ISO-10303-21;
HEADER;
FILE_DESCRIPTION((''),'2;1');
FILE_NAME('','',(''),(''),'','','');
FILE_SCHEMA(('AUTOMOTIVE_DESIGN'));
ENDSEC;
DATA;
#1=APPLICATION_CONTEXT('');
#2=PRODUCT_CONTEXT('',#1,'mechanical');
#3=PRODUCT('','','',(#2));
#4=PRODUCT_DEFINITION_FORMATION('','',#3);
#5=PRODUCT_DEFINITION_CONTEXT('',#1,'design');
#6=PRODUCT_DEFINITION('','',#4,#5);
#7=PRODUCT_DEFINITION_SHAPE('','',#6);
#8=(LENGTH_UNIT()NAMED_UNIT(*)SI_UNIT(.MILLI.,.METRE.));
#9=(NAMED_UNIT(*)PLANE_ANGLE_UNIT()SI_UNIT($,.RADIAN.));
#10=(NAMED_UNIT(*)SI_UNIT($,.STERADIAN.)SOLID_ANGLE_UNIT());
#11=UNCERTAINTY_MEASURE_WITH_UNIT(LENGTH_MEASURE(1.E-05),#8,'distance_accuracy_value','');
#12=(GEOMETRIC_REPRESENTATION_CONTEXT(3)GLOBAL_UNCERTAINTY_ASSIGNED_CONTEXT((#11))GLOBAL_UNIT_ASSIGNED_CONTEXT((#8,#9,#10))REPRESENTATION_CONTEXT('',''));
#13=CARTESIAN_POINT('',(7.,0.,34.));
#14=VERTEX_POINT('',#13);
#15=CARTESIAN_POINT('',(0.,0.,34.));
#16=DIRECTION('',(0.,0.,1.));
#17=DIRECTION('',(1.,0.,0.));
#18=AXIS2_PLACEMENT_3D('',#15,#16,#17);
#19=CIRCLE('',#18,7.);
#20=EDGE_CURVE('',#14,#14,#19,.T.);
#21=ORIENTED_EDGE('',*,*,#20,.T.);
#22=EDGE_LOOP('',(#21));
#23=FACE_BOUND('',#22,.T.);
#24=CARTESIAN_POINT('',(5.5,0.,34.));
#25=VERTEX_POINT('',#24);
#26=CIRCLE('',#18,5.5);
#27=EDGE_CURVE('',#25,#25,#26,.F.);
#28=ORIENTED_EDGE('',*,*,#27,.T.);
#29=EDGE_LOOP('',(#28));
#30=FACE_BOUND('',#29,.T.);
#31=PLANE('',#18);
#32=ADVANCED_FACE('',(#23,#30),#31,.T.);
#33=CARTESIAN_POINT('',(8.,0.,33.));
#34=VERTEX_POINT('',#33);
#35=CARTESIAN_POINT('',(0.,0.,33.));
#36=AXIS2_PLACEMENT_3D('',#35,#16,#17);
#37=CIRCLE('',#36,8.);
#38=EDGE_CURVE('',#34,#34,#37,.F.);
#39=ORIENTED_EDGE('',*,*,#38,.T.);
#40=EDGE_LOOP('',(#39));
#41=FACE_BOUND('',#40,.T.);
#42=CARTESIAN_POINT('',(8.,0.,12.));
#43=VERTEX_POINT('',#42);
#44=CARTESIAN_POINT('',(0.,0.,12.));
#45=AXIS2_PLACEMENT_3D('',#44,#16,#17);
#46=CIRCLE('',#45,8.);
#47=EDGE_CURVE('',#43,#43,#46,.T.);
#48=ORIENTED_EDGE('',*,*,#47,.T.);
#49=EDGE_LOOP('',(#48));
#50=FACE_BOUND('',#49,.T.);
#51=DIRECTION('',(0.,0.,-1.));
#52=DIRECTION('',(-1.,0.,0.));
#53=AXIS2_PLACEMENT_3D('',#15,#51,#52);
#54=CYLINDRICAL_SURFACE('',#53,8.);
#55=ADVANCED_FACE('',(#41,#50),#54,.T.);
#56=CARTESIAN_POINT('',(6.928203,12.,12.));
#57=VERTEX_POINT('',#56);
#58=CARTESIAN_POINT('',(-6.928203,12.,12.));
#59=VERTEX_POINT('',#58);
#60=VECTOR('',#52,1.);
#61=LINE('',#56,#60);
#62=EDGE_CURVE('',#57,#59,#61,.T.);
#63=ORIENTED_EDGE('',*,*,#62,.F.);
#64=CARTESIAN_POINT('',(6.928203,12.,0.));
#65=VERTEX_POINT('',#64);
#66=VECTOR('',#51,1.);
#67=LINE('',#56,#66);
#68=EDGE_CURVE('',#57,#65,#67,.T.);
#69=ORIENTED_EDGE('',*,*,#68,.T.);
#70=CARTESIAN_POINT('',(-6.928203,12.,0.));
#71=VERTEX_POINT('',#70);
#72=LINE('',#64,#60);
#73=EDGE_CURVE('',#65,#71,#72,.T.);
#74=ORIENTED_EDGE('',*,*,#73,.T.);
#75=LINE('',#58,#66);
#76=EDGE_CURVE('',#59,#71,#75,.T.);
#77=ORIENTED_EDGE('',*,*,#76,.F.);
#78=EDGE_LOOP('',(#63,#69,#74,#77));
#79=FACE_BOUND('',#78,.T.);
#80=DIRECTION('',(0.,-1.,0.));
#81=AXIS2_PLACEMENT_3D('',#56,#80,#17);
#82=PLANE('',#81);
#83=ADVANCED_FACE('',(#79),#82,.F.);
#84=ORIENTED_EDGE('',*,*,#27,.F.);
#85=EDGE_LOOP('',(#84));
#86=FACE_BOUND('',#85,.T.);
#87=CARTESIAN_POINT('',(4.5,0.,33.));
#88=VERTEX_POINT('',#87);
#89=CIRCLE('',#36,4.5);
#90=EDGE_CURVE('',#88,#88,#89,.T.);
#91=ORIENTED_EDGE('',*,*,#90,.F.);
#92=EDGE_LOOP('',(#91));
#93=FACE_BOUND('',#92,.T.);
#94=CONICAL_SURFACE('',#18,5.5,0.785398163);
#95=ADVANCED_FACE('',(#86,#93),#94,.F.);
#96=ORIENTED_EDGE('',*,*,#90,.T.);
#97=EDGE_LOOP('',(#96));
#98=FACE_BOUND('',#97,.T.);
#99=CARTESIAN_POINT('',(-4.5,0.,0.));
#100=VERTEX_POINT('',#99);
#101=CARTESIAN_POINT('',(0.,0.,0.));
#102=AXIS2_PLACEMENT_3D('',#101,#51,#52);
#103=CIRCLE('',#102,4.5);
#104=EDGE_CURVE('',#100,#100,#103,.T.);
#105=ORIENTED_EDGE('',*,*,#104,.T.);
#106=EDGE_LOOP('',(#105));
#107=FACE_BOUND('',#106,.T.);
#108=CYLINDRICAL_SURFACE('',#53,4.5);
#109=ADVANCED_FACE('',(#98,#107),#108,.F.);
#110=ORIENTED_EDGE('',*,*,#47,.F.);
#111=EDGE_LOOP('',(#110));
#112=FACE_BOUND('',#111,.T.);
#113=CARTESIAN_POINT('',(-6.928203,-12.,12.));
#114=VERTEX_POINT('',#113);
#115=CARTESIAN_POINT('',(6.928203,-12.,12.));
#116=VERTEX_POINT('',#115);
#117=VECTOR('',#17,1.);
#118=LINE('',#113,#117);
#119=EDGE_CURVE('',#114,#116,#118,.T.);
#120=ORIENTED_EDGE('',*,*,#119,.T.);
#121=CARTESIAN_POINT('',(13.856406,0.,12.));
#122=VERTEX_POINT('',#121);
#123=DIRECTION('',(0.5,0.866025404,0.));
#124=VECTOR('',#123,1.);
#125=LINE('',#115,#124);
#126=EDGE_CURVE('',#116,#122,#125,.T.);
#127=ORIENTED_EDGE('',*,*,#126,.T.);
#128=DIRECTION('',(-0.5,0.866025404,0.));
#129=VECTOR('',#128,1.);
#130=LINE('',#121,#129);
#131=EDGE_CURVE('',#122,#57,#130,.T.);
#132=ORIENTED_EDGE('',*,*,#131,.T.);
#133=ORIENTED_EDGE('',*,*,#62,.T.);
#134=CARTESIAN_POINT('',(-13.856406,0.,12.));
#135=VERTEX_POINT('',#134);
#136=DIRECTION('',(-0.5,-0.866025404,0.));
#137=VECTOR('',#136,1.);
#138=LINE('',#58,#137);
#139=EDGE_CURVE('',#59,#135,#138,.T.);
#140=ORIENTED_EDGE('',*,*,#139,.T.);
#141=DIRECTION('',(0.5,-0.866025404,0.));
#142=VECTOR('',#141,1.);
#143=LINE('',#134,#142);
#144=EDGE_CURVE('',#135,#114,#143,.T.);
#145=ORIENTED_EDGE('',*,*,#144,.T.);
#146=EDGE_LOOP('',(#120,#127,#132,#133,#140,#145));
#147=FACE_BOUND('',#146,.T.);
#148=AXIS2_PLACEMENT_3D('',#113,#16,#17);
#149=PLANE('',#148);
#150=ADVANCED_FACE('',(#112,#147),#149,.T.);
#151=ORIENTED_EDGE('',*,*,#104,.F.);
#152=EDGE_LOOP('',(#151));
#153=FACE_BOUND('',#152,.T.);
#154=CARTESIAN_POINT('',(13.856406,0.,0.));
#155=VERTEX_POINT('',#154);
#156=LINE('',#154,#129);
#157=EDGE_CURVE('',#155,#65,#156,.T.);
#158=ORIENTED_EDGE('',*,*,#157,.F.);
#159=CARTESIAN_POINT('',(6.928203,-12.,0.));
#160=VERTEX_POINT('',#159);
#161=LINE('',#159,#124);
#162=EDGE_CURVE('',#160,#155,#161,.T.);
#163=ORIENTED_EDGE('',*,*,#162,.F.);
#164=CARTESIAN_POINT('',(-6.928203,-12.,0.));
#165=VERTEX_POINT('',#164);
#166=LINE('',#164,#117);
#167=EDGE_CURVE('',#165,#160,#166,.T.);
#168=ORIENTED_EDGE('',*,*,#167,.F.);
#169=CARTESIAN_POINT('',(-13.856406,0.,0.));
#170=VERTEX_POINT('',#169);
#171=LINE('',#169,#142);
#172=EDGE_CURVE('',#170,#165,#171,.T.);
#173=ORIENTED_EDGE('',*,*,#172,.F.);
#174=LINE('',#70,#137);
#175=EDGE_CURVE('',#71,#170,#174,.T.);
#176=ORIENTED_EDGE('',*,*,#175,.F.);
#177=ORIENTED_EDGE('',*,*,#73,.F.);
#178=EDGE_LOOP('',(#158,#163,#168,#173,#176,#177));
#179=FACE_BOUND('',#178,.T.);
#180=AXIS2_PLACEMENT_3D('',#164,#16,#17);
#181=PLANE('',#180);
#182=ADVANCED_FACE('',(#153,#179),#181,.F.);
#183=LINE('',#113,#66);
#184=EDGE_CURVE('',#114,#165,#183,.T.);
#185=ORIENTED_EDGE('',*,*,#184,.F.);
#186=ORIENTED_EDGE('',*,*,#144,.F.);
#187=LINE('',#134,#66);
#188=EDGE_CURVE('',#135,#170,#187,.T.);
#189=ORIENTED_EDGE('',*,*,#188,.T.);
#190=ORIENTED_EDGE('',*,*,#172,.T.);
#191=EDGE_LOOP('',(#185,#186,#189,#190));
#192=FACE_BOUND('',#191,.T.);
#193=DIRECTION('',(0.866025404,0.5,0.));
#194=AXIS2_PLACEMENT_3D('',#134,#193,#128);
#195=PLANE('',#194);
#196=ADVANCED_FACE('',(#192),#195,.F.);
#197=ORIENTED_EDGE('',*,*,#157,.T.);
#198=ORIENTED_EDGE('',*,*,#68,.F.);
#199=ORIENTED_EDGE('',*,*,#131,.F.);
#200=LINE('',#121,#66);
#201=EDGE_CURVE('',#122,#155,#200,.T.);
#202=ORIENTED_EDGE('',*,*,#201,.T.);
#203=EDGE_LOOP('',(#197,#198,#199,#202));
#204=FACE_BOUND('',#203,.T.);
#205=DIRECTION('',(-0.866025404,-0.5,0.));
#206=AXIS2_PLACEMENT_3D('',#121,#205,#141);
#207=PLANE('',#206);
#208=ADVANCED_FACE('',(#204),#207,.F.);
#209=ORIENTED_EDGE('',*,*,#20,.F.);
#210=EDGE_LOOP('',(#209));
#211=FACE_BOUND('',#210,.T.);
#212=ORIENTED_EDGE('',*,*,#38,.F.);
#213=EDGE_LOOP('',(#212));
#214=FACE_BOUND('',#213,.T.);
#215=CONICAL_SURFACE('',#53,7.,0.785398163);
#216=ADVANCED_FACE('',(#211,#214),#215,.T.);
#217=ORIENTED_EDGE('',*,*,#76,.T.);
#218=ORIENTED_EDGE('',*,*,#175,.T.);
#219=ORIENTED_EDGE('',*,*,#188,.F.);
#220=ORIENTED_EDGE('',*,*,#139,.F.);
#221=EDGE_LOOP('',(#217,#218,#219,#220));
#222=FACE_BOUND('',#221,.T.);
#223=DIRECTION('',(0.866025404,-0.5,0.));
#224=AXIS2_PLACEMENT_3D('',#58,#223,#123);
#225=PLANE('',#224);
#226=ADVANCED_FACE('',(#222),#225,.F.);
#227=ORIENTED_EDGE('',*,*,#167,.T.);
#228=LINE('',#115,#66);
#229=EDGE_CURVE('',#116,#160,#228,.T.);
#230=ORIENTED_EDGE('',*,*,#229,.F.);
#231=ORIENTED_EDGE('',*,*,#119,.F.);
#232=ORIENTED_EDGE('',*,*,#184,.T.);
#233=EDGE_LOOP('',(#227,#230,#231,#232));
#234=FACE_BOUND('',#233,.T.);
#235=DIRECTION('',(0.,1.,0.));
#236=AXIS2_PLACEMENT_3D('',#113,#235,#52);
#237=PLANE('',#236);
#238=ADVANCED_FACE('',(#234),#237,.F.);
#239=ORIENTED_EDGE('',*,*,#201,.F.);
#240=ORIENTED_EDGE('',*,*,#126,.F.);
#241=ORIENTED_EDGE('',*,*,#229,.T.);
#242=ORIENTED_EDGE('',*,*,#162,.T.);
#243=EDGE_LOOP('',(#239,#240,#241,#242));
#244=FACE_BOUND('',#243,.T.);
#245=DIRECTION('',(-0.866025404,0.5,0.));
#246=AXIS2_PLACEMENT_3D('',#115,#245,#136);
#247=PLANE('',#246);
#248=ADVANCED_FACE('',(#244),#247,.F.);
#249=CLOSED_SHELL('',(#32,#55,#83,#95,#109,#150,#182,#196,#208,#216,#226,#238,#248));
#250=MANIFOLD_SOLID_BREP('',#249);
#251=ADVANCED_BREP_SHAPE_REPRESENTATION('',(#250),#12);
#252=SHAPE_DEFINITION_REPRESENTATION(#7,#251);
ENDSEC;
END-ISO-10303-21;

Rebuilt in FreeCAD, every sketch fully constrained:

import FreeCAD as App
import Part
import Sketcher
from FreeCAD import Vector
Q = App.Units.Quantity


def edges_at(feature, points):
    """Names of the edges that pass closest to the given points."""
    edges = feature.Shape.Edges
    near = lambda p: min(range(len(edges)), key=lambda i: edges[i].distToShape(Part.Vertex(*p))[0])
    return sorted({f"Edge{near(p) + 1}" for p in points})


def add_polygon(sketch, points):
    """Adds a closed chain of lines whose ends are joined by coincident constraints."""
    first, n = sketch.GeometryCount, len(points)
    for a, b in zip(points, points[1:] + points[:1]):
        sketch.addGeometry(Part.LineSegment(App.Vector(*a, 0), App.Vector(*b, 0)), False)
    for i in range(n):
        sketch.addConstraint(Sketcher.Constraint("Coincident", first + i, 2, first + (i + 1) % n, 1))

doc = App.newDocument("Part")
body = doc.addObject("PartDesign::Body", "Body")

sketch1 = body.newObject("Sketcher::SketchObject", "Sketch")
sketch1.AttachmentSupport = (doc.getObject("XY_Plane"), [""])
sketch1.MapMode = "FlatFace"
add_polygon(sketch1, [(-6.928203, -12), (6.928203, -12), (13.856406, 0), (6.928203, 12), (-6.928203, 12), (-13.856406, 0)])
sketch1.addConstraint([
    Sketcher.Constraint("Horizontal", 0),
    Sketcher.Constraint("Horizontal", 3),
    Sketcher.Constraint("Symmetric", 0, 2, 3, 2, -1, 1),
    Sketcher.Constraint("Symmetric", 1, 2, 4, 2, -1, 1),
    Sketcher.Constraint("PointOnObject", 1, 2, -1),
    Sketcher.Constraint("Parallel", 2, 5),
    Sketcher.Constraint("Vertical", 0, 2, 2, 2),
    Sketcher.Constraint("Angle", 1, Q("60 deg")),
    Sketcher.Constraint("DistanceY", 0, 2, -1, 1, Q("12 mm")),
    Sketcher.Constraint("DistanceX", 0, 1, 0, 2, Q("13.856406 mm")),
])
pad1 = body.newObject("PartDesign::Pad", "Pad")
pad1.Profile = sketch1
pad1.Length = 12

sketch2 = body.newObject("Sketcher::SketchObject", "Sketch001")
sketch2.AttachmentSupport = (doc.getObject("XY_Plane"), [""])
sketch2.MapMode = "FlatFace"
sketch2.AttachmentOffset = App.Placement(Vector(0, 0, 12), App.Rotation())
sketch2.addGeometry(Part.Circle(Vector(0, 0, 0), Vector(0, 0, 1), 8), False)
sketch2.addConstraint([
    Sketcher.Constraint("Coincident", 0, 3, -1, 1),
    Sketcher.Constraint("Diameter", 0, Q("16 mm")),
])
pad2 = body.newObject("PartDesign::Pad", "Pad001")
pad2.Profile = sketch2
pad2.Length = 22

sketch3 = body.newObject("Sketcher::SketchObject", "Sketch002")
sketch3.AttachmentSupport = (doc.getObject("XY_Plane"), [""])
sketch3.MapMode = "FlatFace"
sketch3.addGeometry(Part.Circle(Vector(0, 0, 0), Vector(0, 0, 1), 4.5), False)
sketch3.addConstraint([
    Sketcher.Constraint("Coincident", 0, 3, -1, 1),
    Sketcher.Constraint("Diameter", 0, Q("9 mm")),
])
pocket1 = body.newObject("PartDesign::Pocket", "Pocket")
pocket1.Profile = sketch3
pocket1.Type = "ThroughAll"
pocket1.Reversed = True
doc.recompute()

chamfer = body.newObject("PartDesign::Chamfer", "Chamfer")
chamfer.Base = (pocket1, edges_at(pocket1, [(-8, 0, 34)]))
chamfer.Size = 1
doc.recompute()

chamfer2 = body.newObject("PartDesign::Chamfer", "Chamfer001")
chamfer2.Base = (chamfer, edges_at(chamfer, [(4.5, 0, 34)]))
chamfer2.Size = 1

doc.recompute()
